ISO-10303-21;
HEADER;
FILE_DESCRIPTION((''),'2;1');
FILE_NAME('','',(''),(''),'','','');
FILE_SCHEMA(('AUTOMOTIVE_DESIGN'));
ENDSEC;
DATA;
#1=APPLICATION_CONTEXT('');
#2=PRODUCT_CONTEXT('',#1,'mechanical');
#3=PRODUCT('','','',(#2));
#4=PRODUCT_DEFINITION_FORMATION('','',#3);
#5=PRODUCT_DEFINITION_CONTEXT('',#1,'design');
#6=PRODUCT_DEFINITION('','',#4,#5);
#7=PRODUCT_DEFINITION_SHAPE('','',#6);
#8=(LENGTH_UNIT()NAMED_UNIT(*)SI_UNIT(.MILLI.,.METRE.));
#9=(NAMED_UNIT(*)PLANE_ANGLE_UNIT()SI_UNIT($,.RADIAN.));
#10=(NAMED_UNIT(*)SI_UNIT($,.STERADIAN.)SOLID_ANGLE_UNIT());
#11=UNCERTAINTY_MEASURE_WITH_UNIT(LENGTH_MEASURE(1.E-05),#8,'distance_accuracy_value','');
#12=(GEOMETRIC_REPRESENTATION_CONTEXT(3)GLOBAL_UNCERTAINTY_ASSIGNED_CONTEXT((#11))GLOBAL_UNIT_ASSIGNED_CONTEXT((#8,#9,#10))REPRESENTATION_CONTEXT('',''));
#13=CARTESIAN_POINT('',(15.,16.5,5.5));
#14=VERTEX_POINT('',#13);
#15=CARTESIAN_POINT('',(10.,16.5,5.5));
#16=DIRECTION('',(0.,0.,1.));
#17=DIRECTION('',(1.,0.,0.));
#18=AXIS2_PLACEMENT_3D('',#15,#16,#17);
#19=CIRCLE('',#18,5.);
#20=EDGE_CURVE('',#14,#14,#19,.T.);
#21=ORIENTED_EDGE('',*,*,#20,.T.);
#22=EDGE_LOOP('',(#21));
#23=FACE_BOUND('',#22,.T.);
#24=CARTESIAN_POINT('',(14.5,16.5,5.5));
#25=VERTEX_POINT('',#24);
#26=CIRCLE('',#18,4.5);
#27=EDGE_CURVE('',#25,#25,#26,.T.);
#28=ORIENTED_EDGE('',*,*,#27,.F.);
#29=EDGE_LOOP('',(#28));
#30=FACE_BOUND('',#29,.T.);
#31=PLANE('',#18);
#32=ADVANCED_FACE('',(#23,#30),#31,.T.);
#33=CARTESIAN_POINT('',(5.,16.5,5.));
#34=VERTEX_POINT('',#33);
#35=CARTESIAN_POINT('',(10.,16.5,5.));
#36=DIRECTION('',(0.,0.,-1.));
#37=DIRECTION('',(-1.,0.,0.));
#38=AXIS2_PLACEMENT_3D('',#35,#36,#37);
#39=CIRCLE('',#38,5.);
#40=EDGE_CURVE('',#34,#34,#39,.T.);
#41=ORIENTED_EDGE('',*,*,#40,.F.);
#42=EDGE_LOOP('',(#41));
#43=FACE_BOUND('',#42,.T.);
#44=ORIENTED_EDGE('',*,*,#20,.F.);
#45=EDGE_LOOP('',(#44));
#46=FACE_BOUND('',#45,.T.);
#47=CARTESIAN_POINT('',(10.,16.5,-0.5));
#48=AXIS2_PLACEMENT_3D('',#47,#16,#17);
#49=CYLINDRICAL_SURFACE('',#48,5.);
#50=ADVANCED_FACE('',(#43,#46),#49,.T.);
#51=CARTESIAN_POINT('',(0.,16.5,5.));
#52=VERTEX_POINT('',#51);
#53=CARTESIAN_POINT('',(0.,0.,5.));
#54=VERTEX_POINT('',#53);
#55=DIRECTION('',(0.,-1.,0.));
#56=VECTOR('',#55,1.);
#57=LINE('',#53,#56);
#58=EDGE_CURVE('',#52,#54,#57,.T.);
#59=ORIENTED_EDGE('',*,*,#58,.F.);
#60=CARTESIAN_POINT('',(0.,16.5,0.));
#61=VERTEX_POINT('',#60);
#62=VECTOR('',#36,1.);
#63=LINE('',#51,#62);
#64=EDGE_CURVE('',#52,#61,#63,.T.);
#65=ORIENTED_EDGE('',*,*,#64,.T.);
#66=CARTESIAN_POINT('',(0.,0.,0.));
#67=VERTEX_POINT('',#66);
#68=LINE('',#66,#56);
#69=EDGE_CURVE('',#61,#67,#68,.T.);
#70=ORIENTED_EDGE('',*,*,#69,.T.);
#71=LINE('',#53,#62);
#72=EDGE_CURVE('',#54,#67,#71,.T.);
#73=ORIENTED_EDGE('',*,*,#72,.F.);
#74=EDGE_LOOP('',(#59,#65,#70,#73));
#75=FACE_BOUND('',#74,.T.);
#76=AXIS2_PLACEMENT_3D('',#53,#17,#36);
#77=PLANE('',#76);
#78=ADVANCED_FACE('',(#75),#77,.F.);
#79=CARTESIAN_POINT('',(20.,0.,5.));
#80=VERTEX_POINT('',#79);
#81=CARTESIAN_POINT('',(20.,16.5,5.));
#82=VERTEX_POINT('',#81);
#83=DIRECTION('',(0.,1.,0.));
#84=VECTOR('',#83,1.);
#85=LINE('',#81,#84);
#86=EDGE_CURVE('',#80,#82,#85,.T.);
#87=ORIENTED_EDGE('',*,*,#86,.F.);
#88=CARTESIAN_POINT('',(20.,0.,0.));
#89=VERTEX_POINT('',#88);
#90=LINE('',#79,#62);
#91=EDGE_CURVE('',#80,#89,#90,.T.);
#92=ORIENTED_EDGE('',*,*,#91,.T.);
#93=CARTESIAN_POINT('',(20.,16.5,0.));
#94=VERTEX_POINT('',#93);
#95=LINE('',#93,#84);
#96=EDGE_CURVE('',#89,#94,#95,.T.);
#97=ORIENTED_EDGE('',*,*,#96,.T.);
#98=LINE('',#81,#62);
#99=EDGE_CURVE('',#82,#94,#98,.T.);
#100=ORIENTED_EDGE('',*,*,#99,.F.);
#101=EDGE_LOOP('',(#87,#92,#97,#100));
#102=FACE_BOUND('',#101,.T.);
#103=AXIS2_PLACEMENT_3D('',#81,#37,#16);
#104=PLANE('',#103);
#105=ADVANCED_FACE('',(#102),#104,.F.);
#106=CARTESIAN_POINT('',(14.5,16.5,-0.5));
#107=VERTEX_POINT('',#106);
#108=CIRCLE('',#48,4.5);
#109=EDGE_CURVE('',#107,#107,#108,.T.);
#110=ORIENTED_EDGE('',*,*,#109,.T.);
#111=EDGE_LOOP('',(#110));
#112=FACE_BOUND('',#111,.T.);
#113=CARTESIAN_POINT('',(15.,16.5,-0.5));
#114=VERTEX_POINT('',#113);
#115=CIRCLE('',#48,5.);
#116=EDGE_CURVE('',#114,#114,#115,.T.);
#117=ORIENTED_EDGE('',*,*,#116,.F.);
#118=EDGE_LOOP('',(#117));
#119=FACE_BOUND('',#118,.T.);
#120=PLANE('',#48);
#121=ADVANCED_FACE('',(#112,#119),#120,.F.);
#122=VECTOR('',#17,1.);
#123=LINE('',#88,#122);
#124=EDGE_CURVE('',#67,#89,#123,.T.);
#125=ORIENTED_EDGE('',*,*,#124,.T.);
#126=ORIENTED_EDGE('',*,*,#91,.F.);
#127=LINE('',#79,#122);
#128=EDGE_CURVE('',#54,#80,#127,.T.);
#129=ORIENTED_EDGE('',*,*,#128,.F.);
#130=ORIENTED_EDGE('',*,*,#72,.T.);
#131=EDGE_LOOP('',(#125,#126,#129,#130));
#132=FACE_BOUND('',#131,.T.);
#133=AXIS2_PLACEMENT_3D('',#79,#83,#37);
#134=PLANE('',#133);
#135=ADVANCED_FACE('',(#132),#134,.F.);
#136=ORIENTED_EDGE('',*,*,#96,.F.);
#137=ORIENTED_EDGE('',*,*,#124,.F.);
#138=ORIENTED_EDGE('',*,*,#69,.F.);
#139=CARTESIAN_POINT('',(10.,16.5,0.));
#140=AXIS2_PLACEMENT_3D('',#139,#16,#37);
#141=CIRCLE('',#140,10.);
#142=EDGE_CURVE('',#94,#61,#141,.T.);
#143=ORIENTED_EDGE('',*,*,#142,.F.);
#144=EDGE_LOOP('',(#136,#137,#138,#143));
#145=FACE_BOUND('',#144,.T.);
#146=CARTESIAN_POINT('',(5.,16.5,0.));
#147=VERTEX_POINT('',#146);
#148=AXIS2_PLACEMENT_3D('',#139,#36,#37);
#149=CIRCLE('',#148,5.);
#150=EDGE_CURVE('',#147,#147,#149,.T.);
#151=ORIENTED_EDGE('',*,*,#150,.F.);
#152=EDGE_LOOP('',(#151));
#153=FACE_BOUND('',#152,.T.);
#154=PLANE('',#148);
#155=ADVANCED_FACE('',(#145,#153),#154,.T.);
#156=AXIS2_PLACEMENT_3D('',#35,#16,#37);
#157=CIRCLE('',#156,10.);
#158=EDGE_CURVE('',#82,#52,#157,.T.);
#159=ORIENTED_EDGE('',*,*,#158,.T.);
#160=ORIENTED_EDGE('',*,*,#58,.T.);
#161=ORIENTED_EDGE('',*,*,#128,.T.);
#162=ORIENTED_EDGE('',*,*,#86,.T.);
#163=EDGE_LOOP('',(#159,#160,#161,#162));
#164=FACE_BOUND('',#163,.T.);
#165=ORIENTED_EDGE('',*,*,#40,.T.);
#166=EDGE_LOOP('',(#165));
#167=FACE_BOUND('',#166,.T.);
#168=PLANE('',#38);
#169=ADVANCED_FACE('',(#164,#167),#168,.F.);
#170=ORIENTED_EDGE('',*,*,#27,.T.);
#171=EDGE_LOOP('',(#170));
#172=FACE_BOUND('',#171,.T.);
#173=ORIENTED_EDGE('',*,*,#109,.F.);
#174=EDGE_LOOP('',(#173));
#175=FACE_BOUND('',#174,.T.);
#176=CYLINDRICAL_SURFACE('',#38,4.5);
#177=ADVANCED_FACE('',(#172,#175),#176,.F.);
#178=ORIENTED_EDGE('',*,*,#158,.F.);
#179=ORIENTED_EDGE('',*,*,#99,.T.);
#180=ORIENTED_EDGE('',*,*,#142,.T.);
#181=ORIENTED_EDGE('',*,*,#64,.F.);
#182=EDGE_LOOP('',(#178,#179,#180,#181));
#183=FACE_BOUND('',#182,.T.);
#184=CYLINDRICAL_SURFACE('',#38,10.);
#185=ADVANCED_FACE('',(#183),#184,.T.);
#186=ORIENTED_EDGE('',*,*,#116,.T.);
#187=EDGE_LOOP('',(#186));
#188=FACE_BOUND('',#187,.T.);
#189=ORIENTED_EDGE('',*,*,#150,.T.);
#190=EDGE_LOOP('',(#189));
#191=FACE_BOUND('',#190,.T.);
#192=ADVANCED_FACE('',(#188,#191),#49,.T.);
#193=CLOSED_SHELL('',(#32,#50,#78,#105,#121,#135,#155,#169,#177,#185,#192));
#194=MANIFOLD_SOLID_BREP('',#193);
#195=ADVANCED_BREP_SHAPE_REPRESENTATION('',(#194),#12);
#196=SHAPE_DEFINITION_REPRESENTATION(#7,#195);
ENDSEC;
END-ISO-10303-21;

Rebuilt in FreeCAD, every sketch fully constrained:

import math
import FreeCAD as App
import Part
import Sketcher

doc = App.newDocument("Part")
params = doc.addObject("Spreadsheet::Sheet", "Params")
for row, (alias, value) in enumerate([
    ("sketch1_diameter", "9 mm"),
    ("sketch1_radius", "10 mm"),
    ("sketch1_height", "16.5 mm"),
    ("pad1_length", "5 mm"),
    ("sketch2_diameter", "10 mm"),
    ("sketch2_diameter2", "9 mm"),
    ("pad2_length", "3 mm"),
    ("pad2_length2", "3 mm"),
], start=1):
    params.set(f"A{row}", alias)
    params.set(f"B{row}", "=" + value)
    params.setAlias(f"B{row}", alias)

body = doc.addObject("PartDesign::Body", "Body")

# Sketch on XY plane
sketch1 = body.newObject("Sketcher::SketchObject", "Sketch")
sketch1.AttachmentSupport = (doc.getObject("XY_Plane"), [""])
sketch1.MapMode = "FlatFace"
sketch1.addGeometry([
    Part.LineSegment(App.Vector(0, 16.5, 0), App.Vector(0, 0, 0)),  # 0
    Part.LineSegment(App.Vector(0, 0, 0), App.Vector(20, 0, 0)),  # 1
    Part.LineSegment(App.Vector(20, 0, 0), App.Vector(20, 16.5, 0)),  # 2
    Part.ArcOfCircle(Part.Circle(App.Vector(10, 16.5, 0), App.Vector(0, 0, 1), 10), math.radians(0), math.radians(180)),  # 3
    Part.Circle(App.Vector(10, 16.5, 0), App.Vector(0, 0, 1), 4.5),  # 4
], False)
sketch1.addConstraint([
    Sketcher.Constraint("Coincident", 0, 2, 1, 1),
    Sketcher.Constraint("Coincident", 1, 2, 2, 1),
    Sketcher.Constraint("Tangent", 2, 2, 3, 1),
    Sketcher.Constraint("Tangent", 3, 2, 0, 1),
    Sketcher.Constraint("Vertical", 0),
    Sketcher.Constraint("Horizontal", 1),
    Sketcher.Constraint("Vertical", 2),
    Sketcher.Constraint("Coincident", 0, 2, -1, 1),
    Sketcher.Constraint("Coincident", 4, 3, 3, 3),
    Sketcher.Constraint("Diameter", 4, 9.0),
    Sketcher.Constraint("Radius", 3, 10.0),
    Sketcher.Constraint("DistanceY", 0, 2, 0, 1, 16.5),
])
sketch1.setExpression("Constraints[9]", "Params.sketch1_diameter")
sketch1.setExpression("Constraints[10]", "Params.sketch1_radius")
sketch1.setExpression("Constraints[11]", "Params.sketch1_height")
pad1 = body.newObject("PartDesign::Pad", "Pad")
pad1.Profile = sketch1
pad1.setExpression("Length", "Params.pad1_length")

# Sketch on XY plane
sketch2 = body.newObject("Sketcher::SketchObject", "Sketch001")
sketch2.AttachmentSupport = (doc.getObject("XY_Plane"), [""])
sketch2.MapMode = "FlatFace"
sketch2.AttachmentOffset = App.Placement(App.Vector(0, 0, 2.5), App.Rotation())
sketch2.addGeometry([
    Part.Circle(App.Vector(10, 16.5, 0), App.Vector(0, 0, 1), 5),
    Part.Circle(App.Vector(10, 16.5, 0), App.Vector(0, 0, 1), 4.5),
], False)
sketch2.addConstraint([
    Sketcher.Constraint("Coincident", 1, 3, 0, 3),
    Sketcher.Constraint("Diameter", 0, 10.0),
    Sketcher.Constraint("Diameter", 1, 9.0),
    Sketcher.Constraint("DistanceX", -1, 1, 0, 3, 10.0),
    Sketcher.Constraint("DistanceY", -1, 1, 0, 3, 16.5),
])
sketch2.setExpression("Constraints[1]", "Params.sketch2_diameter")
sketch2.setExpression("Constraints[2]", "Params.sketch2_diameter2")
pad2 = body.newObject("PartDesign::Pad", "Pad001")
pad2.Profile = sketch2
pad2.Type = "TwoLengths"
pad2.setExpression("Length", "Params.pad2_length")
pad2.setExpression("Length2", "Params.pad2_length2")

doc.recompute()
